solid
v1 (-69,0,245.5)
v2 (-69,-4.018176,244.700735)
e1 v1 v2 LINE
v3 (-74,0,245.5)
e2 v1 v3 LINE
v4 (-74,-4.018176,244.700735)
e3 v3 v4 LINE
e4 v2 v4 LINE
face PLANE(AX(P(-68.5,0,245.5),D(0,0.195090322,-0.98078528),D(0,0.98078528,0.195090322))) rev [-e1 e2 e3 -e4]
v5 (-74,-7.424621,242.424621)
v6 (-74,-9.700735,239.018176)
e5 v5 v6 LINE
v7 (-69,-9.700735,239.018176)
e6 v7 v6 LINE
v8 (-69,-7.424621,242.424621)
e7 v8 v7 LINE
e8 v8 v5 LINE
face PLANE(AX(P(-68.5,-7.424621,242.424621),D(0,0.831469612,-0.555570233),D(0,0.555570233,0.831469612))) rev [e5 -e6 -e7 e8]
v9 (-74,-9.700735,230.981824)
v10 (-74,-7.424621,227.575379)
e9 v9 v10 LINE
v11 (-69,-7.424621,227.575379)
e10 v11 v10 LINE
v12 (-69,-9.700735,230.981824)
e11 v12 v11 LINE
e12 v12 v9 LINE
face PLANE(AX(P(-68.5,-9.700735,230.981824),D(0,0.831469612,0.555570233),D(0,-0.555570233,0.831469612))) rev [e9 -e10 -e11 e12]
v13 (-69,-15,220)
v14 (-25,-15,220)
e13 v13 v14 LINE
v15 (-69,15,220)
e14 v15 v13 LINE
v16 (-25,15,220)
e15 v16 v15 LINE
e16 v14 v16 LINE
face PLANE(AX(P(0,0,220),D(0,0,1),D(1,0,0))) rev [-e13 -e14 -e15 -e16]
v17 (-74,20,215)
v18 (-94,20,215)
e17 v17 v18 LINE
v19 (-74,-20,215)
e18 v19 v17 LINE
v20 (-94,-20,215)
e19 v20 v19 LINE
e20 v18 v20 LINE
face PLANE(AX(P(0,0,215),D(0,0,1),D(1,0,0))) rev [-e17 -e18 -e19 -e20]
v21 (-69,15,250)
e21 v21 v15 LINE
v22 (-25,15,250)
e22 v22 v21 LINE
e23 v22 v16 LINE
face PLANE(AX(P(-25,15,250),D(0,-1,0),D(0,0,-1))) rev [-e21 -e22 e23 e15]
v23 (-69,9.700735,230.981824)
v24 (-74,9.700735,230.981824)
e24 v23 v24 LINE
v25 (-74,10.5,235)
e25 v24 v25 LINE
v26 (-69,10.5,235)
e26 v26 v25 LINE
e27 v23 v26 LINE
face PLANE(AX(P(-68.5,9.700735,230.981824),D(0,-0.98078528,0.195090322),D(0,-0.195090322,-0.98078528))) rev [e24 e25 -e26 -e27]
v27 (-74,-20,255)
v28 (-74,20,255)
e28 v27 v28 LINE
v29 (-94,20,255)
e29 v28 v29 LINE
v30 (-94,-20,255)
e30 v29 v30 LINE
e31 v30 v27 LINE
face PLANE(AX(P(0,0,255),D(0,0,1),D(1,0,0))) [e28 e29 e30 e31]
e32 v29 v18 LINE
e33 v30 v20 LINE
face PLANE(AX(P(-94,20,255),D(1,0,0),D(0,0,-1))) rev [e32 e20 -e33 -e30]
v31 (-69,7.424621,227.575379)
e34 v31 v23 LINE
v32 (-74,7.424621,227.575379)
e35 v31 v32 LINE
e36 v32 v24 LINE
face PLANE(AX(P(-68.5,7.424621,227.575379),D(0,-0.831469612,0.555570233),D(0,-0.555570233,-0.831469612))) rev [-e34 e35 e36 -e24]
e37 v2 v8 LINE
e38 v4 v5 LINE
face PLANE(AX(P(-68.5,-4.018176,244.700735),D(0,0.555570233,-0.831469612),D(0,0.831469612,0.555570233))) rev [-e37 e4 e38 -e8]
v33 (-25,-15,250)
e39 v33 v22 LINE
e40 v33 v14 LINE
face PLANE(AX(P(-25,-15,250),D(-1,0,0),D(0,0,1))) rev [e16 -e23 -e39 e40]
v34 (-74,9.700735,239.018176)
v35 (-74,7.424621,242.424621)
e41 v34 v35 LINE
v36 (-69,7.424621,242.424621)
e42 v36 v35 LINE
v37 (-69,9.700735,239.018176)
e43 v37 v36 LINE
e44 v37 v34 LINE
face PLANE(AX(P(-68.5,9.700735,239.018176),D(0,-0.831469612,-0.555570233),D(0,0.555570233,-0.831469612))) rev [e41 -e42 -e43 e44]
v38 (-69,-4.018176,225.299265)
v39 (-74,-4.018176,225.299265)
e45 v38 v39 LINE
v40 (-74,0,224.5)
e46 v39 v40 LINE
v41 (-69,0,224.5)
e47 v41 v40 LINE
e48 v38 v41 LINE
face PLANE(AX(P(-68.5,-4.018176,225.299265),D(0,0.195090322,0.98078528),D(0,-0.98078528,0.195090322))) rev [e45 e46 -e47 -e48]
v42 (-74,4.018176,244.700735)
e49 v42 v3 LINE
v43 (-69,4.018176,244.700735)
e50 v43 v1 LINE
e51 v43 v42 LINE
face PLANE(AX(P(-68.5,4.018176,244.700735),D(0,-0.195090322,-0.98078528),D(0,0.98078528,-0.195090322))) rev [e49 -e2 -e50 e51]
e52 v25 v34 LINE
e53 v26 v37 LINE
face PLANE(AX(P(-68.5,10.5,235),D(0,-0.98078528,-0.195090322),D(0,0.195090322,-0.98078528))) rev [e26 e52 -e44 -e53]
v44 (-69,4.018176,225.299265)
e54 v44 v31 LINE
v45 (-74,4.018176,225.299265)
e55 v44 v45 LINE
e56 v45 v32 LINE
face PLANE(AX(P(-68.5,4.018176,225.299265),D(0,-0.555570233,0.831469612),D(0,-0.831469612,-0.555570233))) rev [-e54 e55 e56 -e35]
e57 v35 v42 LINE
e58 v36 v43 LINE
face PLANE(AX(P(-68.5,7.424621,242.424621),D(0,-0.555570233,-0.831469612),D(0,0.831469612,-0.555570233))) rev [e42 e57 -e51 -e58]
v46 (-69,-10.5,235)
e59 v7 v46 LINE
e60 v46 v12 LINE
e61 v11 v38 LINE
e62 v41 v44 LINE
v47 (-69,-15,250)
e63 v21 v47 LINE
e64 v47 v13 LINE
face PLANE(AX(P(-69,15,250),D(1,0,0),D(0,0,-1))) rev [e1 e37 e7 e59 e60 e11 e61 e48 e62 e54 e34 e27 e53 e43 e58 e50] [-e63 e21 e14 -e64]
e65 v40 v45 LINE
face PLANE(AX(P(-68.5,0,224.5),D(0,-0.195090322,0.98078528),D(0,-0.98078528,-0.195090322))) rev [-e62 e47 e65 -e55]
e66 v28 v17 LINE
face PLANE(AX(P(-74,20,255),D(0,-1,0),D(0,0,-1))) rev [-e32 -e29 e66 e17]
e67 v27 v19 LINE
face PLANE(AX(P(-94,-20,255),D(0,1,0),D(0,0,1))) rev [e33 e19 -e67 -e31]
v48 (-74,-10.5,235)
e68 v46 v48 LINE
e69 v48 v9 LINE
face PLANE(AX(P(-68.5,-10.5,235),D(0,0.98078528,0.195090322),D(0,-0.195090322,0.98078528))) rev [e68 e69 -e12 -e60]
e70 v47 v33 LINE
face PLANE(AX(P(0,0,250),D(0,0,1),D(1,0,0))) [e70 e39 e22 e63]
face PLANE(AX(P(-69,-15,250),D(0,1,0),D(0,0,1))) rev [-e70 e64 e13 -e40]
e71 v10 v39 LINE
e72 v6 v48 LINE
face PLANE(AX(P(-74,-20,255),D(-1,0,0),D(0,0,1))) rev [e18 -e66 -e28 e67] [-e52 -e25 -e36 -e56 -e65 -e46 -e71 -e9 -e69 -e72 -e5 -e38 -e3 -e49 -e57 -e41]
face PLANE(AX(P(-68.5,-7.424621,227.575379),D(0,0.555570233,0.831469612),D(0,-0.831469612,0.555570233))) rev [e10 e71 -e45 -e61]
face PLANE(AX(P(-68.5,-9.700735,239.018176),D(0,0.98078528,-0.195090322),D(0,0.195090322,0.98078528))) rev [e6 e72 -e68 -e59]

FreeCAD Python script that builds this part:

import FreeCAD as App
import Part
import Sketcher
from FreeCAD import Vector
Q = App.Units.Quantity

doc = App.newDocument("Part")
body = doc.addObject("PartDesign::Body", "Body")

# Sketch on XY plane
sketch1 = body.newObject("Sketcher::SketchObject", "Sketch")
sketch1.AttachmentSupport = (doc.getObject("XY_Plane"), [""])
sketch1.MapMode = "FlatFace"
sketch1.AttachmentOffset = App.Placement(Vector(0, 0, 215), App.Rotation())
sketch1.addGeometry([
    Part.LineSegment(Vector(-94, 20, 0), Vector(-94, -20, 0)),
    Part.LineSegment(Vector(-94, -20, 0), Vector(-74, -20, 0)),
    Part.LineSegment(Vector(-74, -20, 0), Vector(-74, 20, 0)),
    Part.LineSegment(Vector(-74, 20, 0), Vector(-94, 20, 0)),
], False)
sketch1.addConstraint([
    Sketcher.Constraint("Coincident", 0, 2, 1, 1),
    Sketcher.Constraint("Coincident", 1, 2, 2, 1),
    Sketcher.Constraint("Coincident", 2, 2, 3, 1),
    Sketcher.Constraint("Coincident", 3, 2, 0, 1),
    Sketcher.Constraint("Vertical", 0),
    Sketcher.Constraint("Horizontal", 1),
    Sketcher.Constraint("Vertical", 2),
    Sketcher.Constraint("Horizontal", 3),
    Sketcher.Constraint("DistanceX", 1, 1, 1, 2, 20.0),
    Sketcher.Constraint("DistanceY", 0, 2, 0, 1, 40.0),
    Sketcher.Constraint("DistanceX", 0, 2, -1, 1, 94.0),
    Sketcher.Constraint("DistanceY", 0, 2, -1, 1, 20.0),
])
pad1 = body.newObject("PartDesign::Pad", "Pad")
pad1.Profile = sketch1
pad1.Length = 40

# Sketch on YZ plane
sketch2 = body.newObject("Sketcher::SketchObject", "Sketch001")
sketch2.AttachmentSupport = (doc.getObject("YZ_Plane"), [""])
sketch2.MapMode = "FlatFace"
sketch2.AttachmentOffset = App.Placement(Vector(0, 0, -74.5), App.Rotation())
sketch2.addGeometry([
    Part.LineSegment(Vector(9.7, 239, 0), Vector(7.4, 242.4, 0)),  # 0
    Part.LineSegment(Vector(7.4, 242.4, 0), Vector(4, 244.7, 0)),  # 1
    Part.LineSegment(Vector(4, 244.7, 0), Vector(0, 245.5, 0)),  # 2
    Part.LineSegment(Vector(0, 245.5, 0), Vector(-4, 244.7, 0)),  # 3
    Part.LineSegment(Vector(-4, 244.7, 0), Vector(-7.4, 242.4, 0)),  # 4
    Part.LineSegment(Vector(-7.4, 242.4, 0), Vector(-9.7, 239, 0)),  # 5
    Part.LineSegment(Vector(-9.7, 239, 0), Vector(-10.5, 235, 0)),  # 6
    Part.LineSegment(Vector(-10.5, 235, 0), Vector(-9.7, 231, 0)),  # 7
    Part.LineSegment(Vector(-9.7, 231, 0), Vector(-7.4, 227.6, 0)),  # 8
    Part.LineSegment(Vector(-7.4, 227.6, 0), Vector(-4, 225.3, 0)),  # 9
    Part.LineSegment(Vector(-4, 225.3, 0), Vector(0, 224.5, 0)),  # 10
    Part.LineSegment(Vector(0, 224.5, 0), Vector(4, 225.3, 0)),  # 11
    Part.LineSegment(Vector(4, 225.3, 0), Vector(7.4, 227.6, 0)),  # 12
    Part.LineSegment(Vector(7.4, 227.6, 0), Vector(9.7, 231, 0)),  # 13
    Part.LineSegment(Vector(9.7, 231, 0), Vector(10.5, 235, 0)),  # 14
    Part.LineSegment(Vector(10.5, 235, 0), Vector(9.7, 239, 0)),  # 15
], False)
sketch2.addConstraint([
    Sketcher.Constraint("Coincident", 0, 2, 1, 1),
    Sketcher.Constraint("Coincident", 1, 2, 2, 1),
    Sketcher.Constraint("Coincident", 2, 2, 3, 1),
    Sketcher.Constraint("Coincident", 3, 2, 4, 1),
    Sketcher.Constraint("Coincident", 4, 2, 5, 1),
    Sketcher.Constraint("Coincident", 5, 2, 6, 1),
    Sketcher.Constraint("Coincident", 6, 2, 7, 1),
    Sketcher.Constraint("Coincident", 7, 2, 8, 1),
    Sketcher.Constraint("Coincident", 8, 2, 9, 1),
    Sketcher.Constraint("Coincident", 9, 2, 10, 1),
    Sketcher.Constraint("Coincident", 10, 2, 11, 1),
    Sketcher.Constraint("Coincident", 11, 2, 12, 1),
    Sketcher.Constraint("Coincident", 12, 2, 13, 1),
    Sketcher.Constraint("Coincident", 13, 2, 14, 1),
    Sketcher.Constraint("Coincident", 14, 2, 15, 1),
    Sketcher.Constraint("Coincident", 15, 2, 0, 1),
    Sketcher.Constraint("Symmetric", 1, 2, 3, 2, -2),
    Sketcher.Constraint("Symmetric", 0, 2, 4, 2, -2),
    Sketcher.Constraint("Symmetric", 9, 2, 11, 2, -2),
    Sketcher.Constraint("Symmetric", 8, 2, 12, 2, -2),
    Sketcher.Constraint("Symmetric", 7, 2, 13, 2, -2),
    Sketcher.Constraint("Symmetric", 6, 2, 14, 2, -2),
    Sketcher.Constraint("Symmetric", 5, 2, 15, 2, -2),
    Sketcher.Constraint("PointOnObject", 2, 2, -2),
    Sketcher.Constraint("PointOnObject", 10, 2, -2),
    Sketcher.Constraint("Perpendicular", 0, 4),
    Sketcher.Constraint("Perpendicular", 2, 6),
    Sketcher.Constraint("Perpendicular", 3, 7),
    Sketcher.Constraint("Perpendicular", 4, 8),
    Sketcher.Constraint("Perpendicular", 5, 9),
    Sketcher.Constraint("Perpendicular", 6, 10),
    Sketcher.Constraint("Vertical", 5, 2, 7, 2),
    Sketcher.Constraint("Vertical", 4, 2, 8, 2),
    Sketcher.Constraint("Vertical", 3, 2, 9, 2),
    Sketcher.Constraint("Equal", 0, 1),
    Sketcher.Constraint("Equal", 1, 2),
    Sketcher.Constraint("Equal", 5, 6),
    Sketcher.Constraint("DistanceY", -1, 1, 6, 2, 235.0),
    Sketcher.Constraint("DistanceY", -1, 1, 2, 2, 245.5),
    Sketcher.Constraint("Angle", 0, Q("123.75 deg")),
    Sketcher.Constraint("Angle", 2, Q("168.75 deg")),
])
pad2 = body.newObject("PartDesign::Pad", "Pad001")
pad2.Profile = sketch2
pad2.Length = 6

# Sketch on XY plane
sketch3 = body.newObject("Sketcher::SketchObject", "Sketch002")
sketch3.AttachmentSupport = (doc.getObject("XY_Plane"), [""])
sketch3.MapMode = "FlatFace"
sketch3.AttachmentOffset = App.Placement(Vector(0, 0, 220), App.Rotation())
sketch3.addGeometry([
    Part.LineSegment(Vector(-69, 15, 0), Vector(-69, -15, 0)),
    Part.LineSegment(Vector(-69, -15, 0), Vector(-25, -15, 0)),
    Part.LineSegment(Vector(-25, -15, 0), Vector(-25, 15, 0)),
    Part.LineSegment(Vector(-25, 15, 0), Vector(-69, 15, 0)),
], False)
sketch3.addConstraint([
    Sketcher.Constraint("Coincident", 0, 2, 1, 1),
    Sketcher.Constraint("Coincident", 1, 2, 2, 1),
    Sketcher.Constraint("Coincident", 2, 2, 3, 1),
    Sketcher.Constraint("Coincident", 3, 2, 0, 1),
    Sketcher.Constraint("Vertical", 0),
    Sketcher.Constraint("Horizontal", 1),
    Sketcher.Constraint("Vertical", 2),
    Sketcher.Constraint("Horizontal", 3),
    Sketcher.Constraint("DistanceX", 1, 1, 1, 2, 44.0),
    Sketcher.Constraint("DistanceY", 0, 2, 0, 1, 30.0),
    Sketcher.Constraint("DistanceX", 0, 2, -1, 1, 69.0),
    Sketcher.Constraint("DistanceY", 0, 2, -1, 1, 15.0),
])
pad3 = body.newObject("PartDesign::Pad", "Pad002")
pad3.Profile = sketch3
pad3.Length = 30

doc.recompute()
